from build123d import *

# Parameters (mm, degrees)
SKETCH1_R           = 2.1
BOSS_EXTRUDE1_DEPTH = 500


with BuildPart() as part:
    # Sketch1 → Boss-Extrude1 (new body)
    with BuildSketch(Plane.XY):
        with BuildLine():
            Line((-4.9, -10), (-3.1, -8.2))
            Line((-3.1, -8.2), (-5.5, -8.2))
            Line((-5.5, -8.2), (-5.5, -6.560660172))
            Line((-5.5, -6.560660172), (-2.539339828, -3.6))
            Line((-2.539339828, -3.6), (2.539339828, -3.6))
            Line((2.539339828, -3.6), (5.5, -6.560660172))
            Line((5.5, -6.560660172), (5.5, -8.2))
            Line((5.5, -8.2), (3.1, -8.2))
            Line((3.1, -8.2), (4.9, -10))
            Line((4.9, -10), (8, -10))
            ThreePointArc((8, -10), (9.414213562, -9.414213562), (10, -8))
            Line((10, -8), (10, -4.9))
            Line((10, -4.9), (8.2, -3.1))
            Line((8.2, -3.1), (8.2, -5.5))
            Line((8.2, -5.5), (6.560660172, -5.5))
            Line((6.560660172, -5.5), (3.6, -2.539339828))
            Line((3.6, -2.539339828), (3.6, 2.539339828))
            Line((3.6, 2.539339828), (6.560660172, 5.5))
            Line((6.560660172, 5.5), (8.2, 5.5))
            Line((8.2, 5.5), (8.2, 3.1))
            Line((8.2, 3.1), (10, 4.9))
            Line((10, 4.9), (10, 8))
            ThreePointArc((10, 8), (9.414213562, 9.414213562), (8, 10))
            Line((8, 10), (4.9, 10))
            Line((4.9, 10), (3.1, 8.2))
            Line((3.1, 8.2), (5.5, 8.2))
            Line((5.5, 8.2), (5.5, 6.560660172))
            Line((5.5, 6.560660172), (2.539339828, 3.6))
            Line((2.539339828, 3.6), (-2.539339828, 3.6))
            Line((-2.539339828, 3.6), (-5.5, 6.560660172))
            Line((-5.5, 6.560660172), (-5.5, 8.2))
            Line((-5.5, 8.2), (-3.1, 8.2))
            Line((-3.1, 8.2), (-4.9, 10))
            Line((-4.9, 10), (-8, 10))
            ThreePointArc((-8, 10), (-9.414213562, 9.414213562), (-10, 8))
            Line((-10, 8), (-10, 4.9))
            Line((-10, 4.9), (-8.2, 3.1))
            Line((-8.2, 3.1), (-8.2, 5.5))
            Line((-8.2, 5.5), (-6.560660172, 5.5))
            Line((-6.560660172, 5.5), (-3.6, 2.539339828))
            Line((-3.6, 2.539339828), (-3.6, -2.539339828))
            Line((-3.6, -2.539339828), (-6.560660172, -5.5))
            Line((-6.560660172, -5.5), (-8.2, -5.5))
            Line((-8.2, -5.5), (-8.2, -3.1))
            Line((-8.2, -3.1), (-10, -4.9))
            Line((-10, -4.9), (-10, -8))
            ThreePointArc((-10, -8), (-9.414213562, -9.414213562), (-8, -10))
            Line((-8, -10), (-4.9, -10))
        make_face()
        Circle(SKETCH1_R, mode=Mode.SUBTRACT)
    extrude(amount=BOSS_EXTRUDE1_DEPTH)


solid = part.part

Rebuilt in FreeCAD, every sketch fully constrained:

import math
import FreeCAD as App
import Part
import Sketcher
from FreeCAD import Vector
Q = App.Units.Quantity

doc = App.newDocument("Part")
body = doc.addObject("PartDesign::Body", "Body")

sketch1 = doc.addObject("Sketcher::SketchObject", "Sketch")
body.addObject(sketch1)
sketch1.AttachmentSupport = (doc.XY_Plane, [""])
sketch1.MapMode = "FlatFace"
sketch1.addGeometry(Part.LineSegment(Vector(-4.9, -10, 0), Vector(-3.1, -8.2, 0)), False)
sketch1.addGeometry(Part.LineSegment(Vector(-3.1, -8.2, 0), Vector(-5.5, -8.2, 0)), False)
sketch1.addGeometry(Part.LineSegment(Vector(-5.5, -8.2, 0), Vector(-5.5, -6.6, 0)), False)
sketch1.addGeometry(Part.LineSegment(Vector(-5.5, -6.6, 0), Vector(-2.5, -3.6, 0)), False)
sketch1.addGeometry(Part.LineSegment(Vector(-2.5, -3.6, 0), Vector(2.5, -3.6, 0)), False)
sketch1.addGeometry(Part.LineSegment(Vector(2.5, -3.6, 0), Vector(5.5, -6.6, 0)), False)
sketch1.addGeometry(Part.LineSegment(Vector(5.5, -6.6, 0), Vector(5.5, -8.2, 0)), False)
sketch1.addGeometry(Part.LineSegment(Vector(5.5, -8.2, 0), Vector(3.1, -8.2, 0)), False)
sketch1.addGeometry(Part.LineSegment(Vector(3.1, -8.2, 0), Vector(4.9, -10, 0)), False)
sketch1.addGeometry(Part.LineSegment(Vector(4.9, -10, 0), Vector(8, -10, 0)), False)
sketch1.addGeometry(Part.ArcOfCircle(Part.Circle(Vector(8, -8, 0), Vector(0, 0, 1), 2), math.radians(-90), math.radians(0)), False)
sketch1.addGeometry(Part.LineSegment(Vector(10, -8, 0), Vector(10, -4.9, 0)), False)
sketch1.addGeometry(Part.LineSegment(Vector(10, -4.9, 0), Vector(8.2, -3.1, 0)), False)
sketch1.addGeometry(Part.LineSegment(Vector(8.2, -3.1, 0), Vector(8.2, -5.5, 0)), False)
sketch1.addGeometry(Part.LineSegment(Vector(8.2, -5.5, 0), Vector(6.6, -5.5, 0)), False)
sketch1.addGeometry(Part.LineSegment(Vector(6.6, -5.5, 0), Vector(3.6, -2.5, 0)), False)
sketch1.addGeometry(Part.LineSegment(Vector(3.6, -2.5, 0), Vector(3.6, 2.5, 0)), False)
sketch1.addGeometry(Part.LineSegment(Vector(3.6, 2.5, 0), Vector(6.6, 5.5, 0)), False)
sketch1.addGeometry(Part.LineSegment(Vector(6.6, 5.5, 0), Vector(8.2, 5.5, 0)), False)
sketch1.addGeometry(Part.LineSegment(Vector(8.2, 5.5, 0), Vector(8.2, 3.1, 0)), False)
sketch1.addGeometry(Part.LineSegment(Vector(8.2, 3.1, 0), Vector(10, 4.9, 0)), False)
sketch1.addGeometry(Part.LineSegment(Vector(10, 4.9, 0), Vector(10, 8, 0)), False)
sketch1.addGeometry(Part.ArcOfCircle(Part.Circle(Vector(8, 8, 0), Vector(0, 0, 1), 2), math.radians(0), math.radians(90)), False)
sketch1.addGeometry(Part.LineSegment(Vector(8, 10, 0), Vector(4.9, 10, 0)), False)
sketch1.addGeometry(Part.LineSegment(Vector(4.9, 10, 0), Vector(3.1, 8.2, 0)), False)
sketch1.addGeometry(Part.LineSegment(Vector(3.1, 8.2, 0), Vector(5.5, 8.2, 0)), False)
sketch1.addGeometry(Part.LineSegment(Vector(5.5, 8.2, 0), Vector(5.5, 6.6, 0)), False)
sketch1.addGeometry(Part.LineSegment(Vector(5.5, 6.6, 0), Vector(2.5, 3.6, 0)), False)
sketch1.addGeometry(Part.LineSegment(Vector(2.5, 3.6, 0), Vector(-2.5, 3.6, 0)), False)
sketch1.addGeometry(Part.LineSegment(Vector(-2.5, 3.6, 0), Vector(-5.5, 6.6, 0)), False)
sketch1.addGeometry(Part.LineSegment(Vector(-5.5, 6.6, 0), Vector(-5.5, 8.2, 0)), False)
sketch1.addGeometry(Part.LineSegment(Vector(-5.5, 8.2, 0), Vector(-3.1, 8.2, 0)), False)
sketch1.addGeometry(Part.LineSegment(Vector(-3.1, 8.2, 0), Vector(-4.9, 10, 0)), False)
sketch1.addGeometry(Part.LineSegment(Vector(-4.9, 10, 0), Vector(-8, 10, 0)), False)
sketch1.addGeometry(Part.ArcOfCircle(Part.Circle(Vector(-8, 8, 0), Vector(0, 0, 1), 2), math.radians(90), math.radians(180)), False)
sketch1.addGeometry(Part.LineSegment(Vector(-10, 8, 0), Vector(-10, 4.9, 0)), False)
sketch1.addGeometry(Part.LineSegment(Vector(-10, 4.9, 0), Vector(-8.2, 3.1, 0)), False)
sketch1.addGeometry(Part.LineSegment(Vector(-8.2, 3.1, 0), Vector(-8.2, 5.5, 0)), False)
sketch1.addGeometry(Part.LineSegment(Vector(-8.2, 5.5, 0), Vector(-6.6, 5.5, 0)), False)
sketch1.addGeometry(Part.LineSegment(Vector(-6.6, 5.5, 0), Vector(-3.6, 2.5, 0)), False)
sketch1.addGeometry(Part.LineSegment(Vector(-3.6, 2.5, 0), Vector(-3.6, -2.5, 0)), False)
sketch1.addGeometry(Part.LineSegment(Vector(-3.6, -2.5, 0), Vector(-6.6, -5.5, 0)), False)
sketch1.addGeometry(Part.LineSegment(Vector(-6.6, -5.5, 0), Vector(-8.2, -5.5, 0)), False)
sketch1.addGeometry(Part.LineSegment(Vector(-8.2, -5.5, 0), Vector(-8.2, -3.1, 0)), False)
sketch1.addGeometry(Part.LineSegment(Vector(-8.2, -3.1, 0), Vector(-10, -4.9, 0)), False)
sketch1.addGeometry(Part.LineSegment(Vector(-10, -4.9, 0), Vector(-10, -8, 0)), False)
sketch1.addGeometry(Part.ArcOfCircle(Part.Circle(Vector(-8, -8, 0), Vector(0, 0, 1), 2), math.radians(-180), math.radians(-90)), False)
sketch1.addGeometry(Part.LineSegment(Vector(-8, -10, 0), Vector(-4.9, -10, 0)), False)
sketch1.addGeometry(Part.Circle(Vector(0, 0, 0), Vector(0, 0, 1), 2.1), False)
sketch1.addConstraint(Sketcher.Constraint("Coincident", 0, 2, 1, 1))
sketch1.addConstraint(Sketcher.Constraint("Coincident", 1, 2, 2, 1))
sketch1.addConstraint(Sketcher.Constraint("Coincident", 2, 2, 3, 1))
sketch1.addConstraint(Sketcher.Constraint("Coincident", 3, 2, 4, 1))
sketch1.addConstraint(Sketcher.Constraint("Coincident", 4, 2, 5, 1))
sketch1.addConstraint(Sketcher.Constraint("Coincident", 5, 2, 6, 1))
sketch1.addConstraint(Sketcher.Constraint("Coincident", 6, 2, 7, 1))
sketch1.addConstraint(Sketcher.Constraint("Coincident", 7, 2, 8, 1))
sketch1.addConstraint(Sketcher.Constraint("Coincident", 8, 2, 9, 1))
sketch1.addConstraint(Sketcher.Constraint("Tangent", 9, 2, 10, 1))
sketch1.addConstraint(Sketcher.Constraint("Tangent", 10, 2, 11, 1))
sketch1.addConstraint(Sketcher.Constraint("Coincident", 11, 2, 12, 1))
sketch1.addConstraint(Sketcher.Constraint("Coincident", 12, 2, 13, 1))
sketch1.addConstraint(Sketcher.Constraint("Coincident", 13, 2, 14, 1))
sketch1.addConstraint(Sketcher.Constraint("Coincident", 14, 2, 15, 1))
sketch1.addConstraint(Sketcher.Constraint("Coincident", 15, 2, 16, 1))
sketch1.addConstraint(Sketcher.Constraint("Coincident", 16, 2, 17, 1))
sketch1.addConstraint(Sketcher.Constraint("Coincident", 17, 2, 18, 1))
sketch1.addConstraint(Sketcher.Constraint("Coincident", 18, 2, 19, 1))
sketch1.addConstraint(Sketcher.Constraint("Coincident", 19, 2, 20, 1))
sketch1.addConstraint(Sketcher.Constraint("Coincident", 20, 2, 21, 1))
sketch1.addConstraint(Sketcher.Constraint("Tangent", 21, 2, 22, 1))
sketch1.addConstraint(Sketcher.Constraint("Tangent", 22, 2, 23, 1))
sketch1.addConstraint(Sketcher.Constraint("Coincident", 23, 2, 24, 1))
sketch1.addConstraint(Sketcher.Constraint("Coincident", 24, 2, 25, 1))
sketch1.addConstraint(Sketcher.Constraint("Coincident", 25, 2, 26, 1))
sketch1.addConstraint(Sketcher.Constraint("Coincident", 26, 2, 27, 1))
sketch1.addConstraint(Sketcher.Constraint("Coincident", 27, 2, 28, 1))
sketch1.addConstraint(Sketcher.Constraint("Coincident", 28, 2, 29, 1))
sketch1.addConstraint(Sketcher.Constraint("Coincident", 29, 2, 30, 1))
sketch1.addConstraint(Sketcher.Constraint("Coincident", 30, 2, 31, 1))
sketch1.addConstraint(Sketcher.Constraint("Coincident", 31, 2, 32, 1))
sketch1.addConstraint(Sketcher.Constraint("Coincident", 32, 2, 33, 1))
sketch1.addConstraint(Sketcher.Constraint("Tangent", 33, 2, 34, 1))
sketch1.addConstraint(Sketcher.Constraint("Tangent", 34, 2, 35, 1))
sketch1.addConstraint(Sketcher.Constraint("Coincident", 35, 2, 36, 1))
sketch1.addConstraint(Sketcher.Constraint("Coincident", 36, 2, 37, 1))
sketch1.addConstraint(Sketcher.Constraint("Coincident", 37, 2, 38, 1))
sketch1.addConstraint(Sketcher.Constraint("Coincident", 38, 2, 39, 1))
sketch1.addConstraint(Sketcher.Constraint("Coincident", 39, 2, 40, 1))
sketch1.addConstraint(Sketcher.Constraint("Coincident", 40, 2, 41, 1))
sketch1.addConstraint(Sketcher.Constraint("Coincident", 41, 2, 42, 1))
sketch1.addConstraint(Sketcher.Constraint("Coincident", 42, 2, 43, 1))
sketch1.addConstraint(Sketcher.Constraint("Coincident", 43, 2, 44, 1))
sketch1.addConstraint(Sketcher.Constraint("Coincident", 44, 2, 45, 1))
sketch1.addConstraint(Sketcher.Constraint("Tangent", 45, 2, 46, 1))
sketch1.addConstraint(Sketcher.Constraint("Tangent", 46, 2, 47, 1))
sketch1.addConstraint(Sketcher.Constraint("Coincident", 47, 2, 0, 1))
sketch1.addConstraint(Sketcher.Constraint("Horizontal", 1))
sketch1.addConstraint(Sketcher.Constraint("Vertical", 2))
sketch1.addConstraint(Sketcher.Constraint("Horizontal", 4))
sketch1.addConstraint(Sketcher.Constraint("Vertical", 6))
sketch1.addConstraint(Sketcher.Constraint("Horizontal", 7))
sketch1.addConstraint(Sketcher.Constraint("Horizontal", 9))
sketch1.addConstraint(Sketcher.Constraint("Vertical", 11))
sketch1.addConstraint(Sketcher.Constraint("Vertical", 13))
sketch1.addConstraint(Sketcher.Constraint("Horizontal", 14))
sketch1.addConstraint(Sketcher.Constraint("Vertical", 16))
sketch1.addConstraint(Sketcher.Constraint("Horizontal", 18))
sketch1.addConstraint(Sketcher.Constraint("Vertical", 19))
sketch1.addConstraint(Sketcher.Constraint("Vertical", 21))
sketch1.addConstraint(Sketcher.Constraint("Horizontal", 23))
sketch1.addConstraint(Sketcher.Constraint("Horizontal", 25))
sketch1.addConstraint(Sketcher.Constraint("Vertical", 26))
sketch1.addConstraint(Sketcher.Constraint("Horizontal", 28))
sketch1.addConstraint(Sketcher.Constraint("Vertical", 30))
sketch1.addConstraint(Sketcher.Constraint("Horizontal", 31))
sketch1.addConstraint(Sketcher.Constraint("Horizontal", 33))
sketch1.addConstraint(Sketcher.Constraint("Vertical", 35))
sketch1.addConstraint(Sketcher.Constraint("Vertical", 37))
sketch1.addConstraint(Sketcher.Constraint("Horizontal", 38))
sketch1.addConstraint(Sketcher.Constraint("Vertical", 40))
sketch1.addConstraint(Sketcher.Constraint("Horizontal", 42))
sketch1.addConstraint(Sketcher.Constraint("Vertical", 43))
sketch1.addConstraint(Sketcher.Constraint("Vertical", 45))
sketch1.addConstraint(Sketcher.Constraint("Horizontal", 47))
sketch1.addConstraint(Sketcher.Constraint("Coincident", 48, 3, -1, 1))
sketch1.addConstraint(Sketcher.Constraint("Equal", 10, 22))
sketch1.addConstraint(Sketcher.Constraint("Equal", 22, 34))
sketch1.addConstraint(Sketcher.Constraint("Equal", 34, 46))
sketch1.addConstraint(Sketcher.Constraint("Symmetric", 10, 3, 34, 3, -1, 1))
sketch1.addConstraint(Sketcher.Constraint("Symmetric", 22, 3, 46, 3, -1, 1))
sketch1.addConstraint(Sketcher.Constraint("Symmetric", 0, 2, 24, 2, -1, 1))
sketch1.addConstraint(Sketcher.Constraint("Symmetric", 2, 2, 26, 2, -1, 1))
sketch1.addConstraint(Sketcher.Constraint("Symmetric", 3, 2, 27, 2, -1, 1))
sketch1.addConstraint(Sketcher.Constraint("Symmetric", 5, 2, 29, 2, -1, 1))
sketch1.addConstraint(Sketcher.Constraint("Symmetric", 7, 2, 31, 2, -1, 1))
sketch1.addConstraint(Sketcher.Constraint("Symmetric", 12, 2, 36, 2, -1, 1))
sketch1.addConstraint(Sketcher.Constraint("Symmetric", 14, 2, 38, 2, -1, 1))
sketch1.addConstraint(Sketcher.Constraint("Symmetric", 15, 2, 39, 2, -1, 1))
sketch1.addConstraint(Sketcher.Constraint("Symmetric", 17, 2, 41, 2, -1, 1))
sketch1.addConstraint(Sketcher.Constraint("Symmetric", 19, 2, 43, 2, -1, 1))
sketch1.addConstraint(Sketcher.Constraint("Symmetric", 22, 3, 34, 3, -2))
sketch1.addConstraint(Sketcher.Constraint("Symmetric", 2, 2, 5, 2, -2))
sketch1.addConstraint(Sketcher.Constraint("Symmetric", 0, 2, 7, 2, -2))
sketch1.addConstraint(Sketcher.Constraint("Symmetric", 19, 2, 36, 2, -2))
sketch1.addConstraint(Sketcher.Constraint("Symmetric", 17, 2, 38, 2, -2))
sketch1.addConstraint(Sketcher.Constraint("Parallel", 0, 3))
sketch1.addConstraint(Sketcher.Constraint("Perpendicular", 3, 5))
sketch1.addConstraint(Sketcher.Constraint("Parallel", 5, 8))
sketch1.addConstraint(Sketcher.Constraint("Parallel", 8, 12))
sketch1.addConstraint(Sketcher.Constraint("Parallel", 12, 15))
sketch1.addConstraint(Sketcher.Constraint("Perpendicular", 15, 17))
sketch1.addConstraint(Sketcher.Constraint("Parallel", 17, 20))
sketch1.addConstraint(Sketcher.Constraint("Parallel", 20, 24))
sketch1.addConstraint(Sketcher.Constraint("Perpendicular", 27, 29))
sketch1.addConstraint(Sketcher.Constraint("Parallel", 29, 32))
sketch1.addConstraint(Sketcher.Constraint("Parallel", 32, 36))
sketch1.addConstraint(Sketcher.Constraint("Perpendicular", 39, 41))
sketch1.addConstraint(Sketcher.Constraint("Parallel", 41, 44))
sketch1.addConstraint(Sketcher.Constraint("Horizontal", 20, 2, 35, 2))
sketch1.addConstraint(Sketcher.Constraint("Equal", 42, 2))
sketch1.addConstraint(Sketcher.Constraint("Equal", 47, 11))
sketch1.addConstraint(Sketcher.Constraint("Equal", 31, 13))
sketch1.addConstraint(Sketcher.Constraint("Equal", 28, 16))
sketch1.addConstraint(Sketcher.Constraint("Equal", 8, 12))
sketch1.addConstraint(Sketcher.Constraint("Equal", 5, 15))
sketch1.addConstraint(Sketcher.Constraint("Radius", 10, Q("2 mm")))
sketch1.addConstraint(Sketcher.Constraint("Diameter", 48, Q("4.2 mm")))
sketch1.addConstraint(Sketcher.Constraint("DistanceX", 1, 2, 1, 1, Q("2.4 mm")))
sketch1.addConstraint(Sketcher.Constraint("DistanceX", 9, 1, 9, 2, Q("3.1 mm")))
sketch1.addConstraint(Sketcher.Constraint("DistanceX", -1, 1, 10, 3, Q("8 mm")))
sketch1.addConstraint(Sketcher.Constraint("DistanceX", 0, 2, -1, 1, Q("3.1 mm")))
sketch1.addConstraint(Sketcher.Constraint("DistanceY", 3, 2, -1, 1, Q("3.6 mm")))
sketch1.addConstraint(Sketcher.Constraint("DistanceX", 4, 1, 4, 2, Q("5.07868 mm")))
pad1 = doc.addObject("PartDesign::Pad", "Pad")
body.addObject(pad1)
pad1.Profile = sketch1
pad1.Length = 500

doc.recompute()
